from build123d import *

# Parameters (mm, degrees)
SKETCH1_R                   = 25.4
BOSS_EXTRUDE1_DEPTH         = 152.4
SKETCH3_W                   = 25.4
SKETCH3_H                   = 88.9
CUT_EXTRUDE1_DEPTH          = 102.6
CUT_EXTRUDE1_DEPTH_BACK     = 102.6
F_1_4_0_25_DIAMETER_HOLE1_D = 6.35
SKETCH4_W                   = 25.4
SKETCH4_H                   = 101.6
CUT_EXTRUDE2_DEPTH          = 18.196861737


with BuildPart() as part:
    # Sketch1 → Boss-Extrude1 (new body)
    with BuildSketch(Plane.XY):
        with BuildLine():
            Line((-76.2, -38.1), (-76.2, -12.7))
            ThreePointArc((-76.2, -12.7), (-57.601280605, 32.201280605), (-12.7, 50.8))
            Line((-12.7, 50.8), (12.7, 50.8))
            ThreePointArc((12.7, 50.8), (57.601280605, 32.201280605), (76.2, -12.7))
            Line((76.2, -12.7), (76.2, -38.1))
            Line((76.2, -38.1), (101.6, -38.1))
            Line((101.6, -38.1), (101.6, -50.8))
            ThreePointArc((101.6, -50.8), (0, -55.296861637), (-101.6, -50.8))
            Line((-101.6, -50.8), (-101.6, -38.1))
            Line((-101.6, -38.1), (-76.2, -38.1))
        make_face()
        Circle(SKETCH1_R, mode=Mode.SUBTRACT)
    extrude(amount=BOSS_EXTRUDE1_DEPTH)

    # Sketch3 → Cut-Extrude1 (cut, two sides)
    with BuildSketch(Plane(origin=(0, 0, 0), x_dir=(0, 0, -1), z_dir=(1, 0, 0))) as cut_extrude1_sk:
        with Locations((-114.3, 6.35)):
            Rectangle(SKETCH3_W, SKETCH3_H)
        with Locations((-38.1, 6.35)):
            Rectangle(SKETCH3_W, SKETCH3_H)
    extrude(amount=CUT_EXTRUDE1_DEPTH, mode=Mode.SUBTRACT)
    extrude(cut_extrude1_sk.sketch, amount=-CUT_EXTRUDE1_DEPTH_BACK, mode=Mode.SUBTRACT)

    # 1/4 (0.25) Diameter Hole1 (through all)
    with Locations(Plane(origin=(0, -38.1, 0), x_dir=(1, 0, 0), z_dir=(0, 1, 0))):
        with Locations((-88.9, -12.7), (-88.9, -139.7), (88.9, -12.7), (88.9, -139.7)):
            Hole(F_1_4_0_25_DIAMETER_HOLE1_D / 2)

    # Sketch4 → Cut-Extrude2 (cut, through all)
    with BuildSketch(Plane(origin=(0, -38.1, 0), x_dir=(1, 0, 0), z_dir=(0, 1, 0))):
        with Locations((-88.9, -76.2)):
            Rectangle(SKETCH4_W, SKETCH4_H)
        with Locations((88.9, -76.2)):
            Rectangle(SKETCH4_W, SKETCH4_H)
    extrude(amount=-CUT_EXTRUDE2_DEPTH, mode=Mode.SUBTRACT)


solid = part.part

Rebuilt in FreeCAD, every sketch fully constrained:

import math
import FreeCAD as App
import Part
import Sketcher
from FreeCAD import Vector
Q = App.Units.Quantity


def add_polygon(sketch, points):
    """Adds a closed chain of lines whose ends are joined by coincident constraints."""
    first, n = sketch.GeometryCount, len(points)
    for a, b in zip(points, points[1:] + points[:1]):
        sketch.addGeometry(Part.LineSegment(App.Vector(*a, 0), App.Vector(*b, 0)), False)
    for i in range(n):
        sketch.addConstraint(Sketcher.Constraint("Coincident", first + i, 2, first + (i + 1) % n, 1))

doc = App.newDocument("Part")
body = doc.addObject("PartDesign::Body", "Body")

# Sketch on XY plane
sketch1 = body.newObject("Sketcher::SketchObject", "Sketch")
sketch1.AttachmentSupport = (doc.getObject("XY_Plane"), [""])
sketch1.MapMode = "FlatFace"
sketch1.addGeometry([
    Part.LineSegment(Vector(-76, -13, 0), Vector(-76, -38, 0)),  # 0
    Part.LineSegment(Vector(-76, -38, 0), Vector(-102, -38, 0)),  # 1
    Part.LineSegment(Vector(-102, -38, 0), Vector(-102, -51, 0)),  # 2
    Part.ArcOfCircle(Part.Circle(Vector(0, 1095, 0), Vector(0, 0, 1), 1150), math.radians(-95.07), math.radians(-84.93)),  # 3
    Part.LineSegment(Vector(102, -51, 0), Vector(102, -38, 0)),  # 4
    Part.LineSegment(Vector(102, -38, 0), Vector(76, -38, 0)),  # 5
    Part.LineSegment(Vector(76, -38, 0), Vector(76, -13, 0)),  # 6
    Part.ArcOfCircle(Part.Circle(Vector(13, -13, 0), Vector(0, 0, 1), 64), math.radians(0), math.radians(90)),  # 7
    Part.LineSegment(Vector(13, 51, 0), Vector(-13, 51, 0)),  # 8
    Part.ArcOfCircle(Part.Circle(Vector(-13, -13, 0), Vector(0, 0, 1), 64), math.radians(90), math.radians(180)),  # 9
    Part.Circle(Vector(0, 0, 0), Vector(0, 0, 1), 25),  # 10
], False)
sketch1.addConstraint([
    Sketcher.Constraint("Coincident", 0, 2, 1, 1),
    Sketcher.Constraint("Coincident", 1, 2, 2, 1),
    Sketcher.Constraint("Coincident", 2, 2, 3, 1),
    Sketcher.Constraint("Coincident", 3, 2, 4, 1),
    Sketcher.Constraint("Coincident", 4, 2, 5, 1),
    Sketcher.Constraint("Coincident", 5, 2, 6, 1),
    Sketcher.Constraint("Tangent", 6, 2, 7, 1),
    Sketcher.Constraint("Tangent", 7, 2, 8, 1),
    Sketcher.Constraint("Tangent", 8, 2, 9, 1),
    Sketcher.Constraint("Tangent", 9, 2, 0, 1),
    Sketcher.Constraint("Vertical", 0),
    Sketcher.Constraint("Horizontal", 1),
    Sketcher.Constraint("Vertical", 2),
    Sketcher.Constraint("Vertical", 4),
    Sketcher.Constraint("Horizontal", 5),
    Sketcher.Constraint("Vertical", 6),
    Sketcher.Constraint("Horizontal", 8),
    Sketcher.Constraint("Coincident", 10, 3, -1, 1),
    Sketcher.Constraint("Equal", 7, 9),
    Sketcher.Constraint("Symmetric", 1, 2, 4, 2, -2),
    Sketcher.Constraint("PointOnObject", 3, 3, -2),
    Sketcher.Constraint("Equal", 1, 5),
    Sketcher.Constraint("Equal", 5, 8),
    Sketcher.Constraint("Equal", 8, 0),
    Sketcher.Constraint("Diameter", 10, Q("2 in")),
    Sketcher.Constraint("Radius", 7, Q("2.5 in")),
    Sketcher.Constraint("DistanceX", 1, 2, 1, 1, Q("1 in")),
    Sketcher.Constraint("DistanceY", 2, 2, 2, 1, Q("0.5 in")),
    Sketcher.Constraint("DistanceY", 2, 2, -1, 1, Q("2 in")),
    Sketcher.Constraint("Radius", 3, 1150.0),
])
pad1 = body.newObject("PartDesign::Pad", "Pad")
pad1.Profile = sketch1
pad1.Length = Q("6 in")

# Sketch on YZ plane
sketch2 = body.newObject("Sketcher::SketchObject", "Sketch001")
sketch2.AttachmentSupport = (doc.getObject("YZ_Plane"), [""])
sketch2.MapMode = "FlatFace"
add_polygon(sketch2, [(51, 127), (-38, 127), (-38, 102), (51, 102)])  # lines 0-3
add_polygon(sketch2, [(51, 51), (-38, 51), (-38, 25), (51, 25)])  # lines 4-7
sketch2.addConstraint([
    Sketcher.Constraint("Horizontal", 0),
    Sketcher.Constraint("Vertical", 1),
    Sketcher.Constraint("Horizontal", 2),
    Sketcher.Constraint("Vertical", 3),
    Sketcher.Constraint("Horizontal", 4),
    Sketcher.Constraint("Vertical", 5),
    Sketcher.Constraint("Horizontal", 6),
    Sketcher.Constraint("Vertical", 7),
    Sketcher.Constraint("Vertical", 1, 2, 4, 2),
    Sketcher.Constraint("Vertical", 3, 2, 6, 2),
    Sketcher.Constraint("Equal", 3, 5),
    Sketcher.Constraint("DistanceY", 1, 2, 1, 1, Q("1 in")),
    Sketcher.Constraint("DistanceX", 0, 2, 0, 1, Q("3.5 in")),
    Sketcher.Constraint("DistanceY", -1, 1, 0, 2, Q("5 in")),
    Sketcher.Constraint("DistanceX", -1, 1, 2, 2, Q("2 in")),
    Sketcher.Constraint("DistanceY", -1, 1, 4, 2, Q("2 in")),
])
pocket1 = body.newObject("PartDesign::Pocket", "Pocket")
pocket1.Profile = sketch2
pocket1.Type = "ThroughAll"
pocket1.Midplane = True

# Sketch on XZ plane
sketch3 = body.newObject("Sketcher::SketchObject", "Sketch002")
sketch3.AttachmentSupport = (doc.getObject("XZ_Plane"), [""])
sketch3.MapMode = "FlatFace"
sketch3.AttachmentOffset = App.Placement(Vector(0, 0, 1.5 * 25.4), App.Rotation())
sketch3.addGeometry([
    Part.Circle(Vector(-88.9, 12.7, 0), Vector(0, 0, 1), 3.2),
    Part.Circle(Vector(-88.9, 139.7, 0), Vector(0, 0, 1), 3.2),
    Part.Circle(Vector(88.9, 12.7, 0), Vector(0, 0, 1), 3.2),
    Part.Circle(Vector(88.9, 139.7, 0), Vector(0, 0, 1), 3.2),
], False)
sketch3.addConstraint([
    Sketcher.Constraint("Equal", 0, 1),
    Sketcher.Constraint("Equal", 1, 2),
    Sketcher.Constraint("Equal", 2, 3),
    Sketcher.Constraint("Symmetric", 0, 3, 2, 3, -2),
    Sketcher.Constraint("Symmetric", 1, 3, 3, 3, -2),
    Sketcher.Constraint("Vertical", 0, 3, 1, 3),
    Sketcher.Constraint("Diameter", 0, Q("0.25 in")),
    Sketcher.Constraint("DistanceY", 0, 3, 1, 3, Q("5 in")),
    Sketcher.Constraint("DistanceX", 0, 3, 2, 3, Q("7 in")),
    Sketcher.Constraint("DistanceY", -1, 1, 0, 3, Q("0.5 in")),
])
doc.recompute()
hole = body.newObject("PartDesign::Hole", "Hole")
hole.Profile = sketch3
hole.ThreadType = "None"
hole.Diameter = Q("0.25 in")
hole.DepthType = "ThroughAll"
hole.Reversed = True

# Sketch on XZ plane
sketch4 = body.newObject("Sketcher::SketchObject", "Sketch003")
sketch4.AttachmentSupport = (doc.getObject("XZ_Plane"), [""])
sketch4.MapMode = "FlatFace"
sketch4.AttachmentOffset = App.Placement(Vector(0, 0, 1.5 * 25.4), App.Rotation())
add_polygon(sketch4, [(-102, 25), (-102, 127), (-76, 127), (-76, 25)])  # lines 0-3
add_polygon(sketch4, [(76, 25), (76, 127), (102, 127), (102, 25)])  # lines 4-7
sketch4.addConstraint([
    Sketcher.Constraint("Vertical", 0),
    Sketcher.Constraint("Horizontal", 1),
    Sketcher.Constraint("Vertical", 2),
    Sketcher.Constraint("Horizontal", 3),
    Sketcher.Constraint("Vertical", 4),
    Sketcher.Constraint("Horizontal", 5),
    Sketcher.Constraint("Vertical", 6),
    Sketcher.Constraint("Horizontal", 7),
    Sketcher.Constraint("Symmetric", 1, 2, 4, 2, -2),
    Sketcher.Constraint("Symmetric", 3, 2, 6, 2, -2),
    Sketcher.Constraint("DistanceX", 1, 1, 1, 2, Q("1 in")),
    Sketcher.Constraint("DistanceY", 0, 1, 0, 2, Q("4 in")),
    Sketcher.Constraint("DistanceX", 0, 2, -1, 1, Q("4 in")),
    Sketcher.Constraint("DistanceY", -1, 1, 0, 2, Q("5 in")),
])
pocket2 = body.newObject("PartDesign::Pocket", "Pocket001")
pocket2.Profile = sketch4
pocket2.Type = "ThroughAll"
pocket2.Reversed = True

doc.recompute()
